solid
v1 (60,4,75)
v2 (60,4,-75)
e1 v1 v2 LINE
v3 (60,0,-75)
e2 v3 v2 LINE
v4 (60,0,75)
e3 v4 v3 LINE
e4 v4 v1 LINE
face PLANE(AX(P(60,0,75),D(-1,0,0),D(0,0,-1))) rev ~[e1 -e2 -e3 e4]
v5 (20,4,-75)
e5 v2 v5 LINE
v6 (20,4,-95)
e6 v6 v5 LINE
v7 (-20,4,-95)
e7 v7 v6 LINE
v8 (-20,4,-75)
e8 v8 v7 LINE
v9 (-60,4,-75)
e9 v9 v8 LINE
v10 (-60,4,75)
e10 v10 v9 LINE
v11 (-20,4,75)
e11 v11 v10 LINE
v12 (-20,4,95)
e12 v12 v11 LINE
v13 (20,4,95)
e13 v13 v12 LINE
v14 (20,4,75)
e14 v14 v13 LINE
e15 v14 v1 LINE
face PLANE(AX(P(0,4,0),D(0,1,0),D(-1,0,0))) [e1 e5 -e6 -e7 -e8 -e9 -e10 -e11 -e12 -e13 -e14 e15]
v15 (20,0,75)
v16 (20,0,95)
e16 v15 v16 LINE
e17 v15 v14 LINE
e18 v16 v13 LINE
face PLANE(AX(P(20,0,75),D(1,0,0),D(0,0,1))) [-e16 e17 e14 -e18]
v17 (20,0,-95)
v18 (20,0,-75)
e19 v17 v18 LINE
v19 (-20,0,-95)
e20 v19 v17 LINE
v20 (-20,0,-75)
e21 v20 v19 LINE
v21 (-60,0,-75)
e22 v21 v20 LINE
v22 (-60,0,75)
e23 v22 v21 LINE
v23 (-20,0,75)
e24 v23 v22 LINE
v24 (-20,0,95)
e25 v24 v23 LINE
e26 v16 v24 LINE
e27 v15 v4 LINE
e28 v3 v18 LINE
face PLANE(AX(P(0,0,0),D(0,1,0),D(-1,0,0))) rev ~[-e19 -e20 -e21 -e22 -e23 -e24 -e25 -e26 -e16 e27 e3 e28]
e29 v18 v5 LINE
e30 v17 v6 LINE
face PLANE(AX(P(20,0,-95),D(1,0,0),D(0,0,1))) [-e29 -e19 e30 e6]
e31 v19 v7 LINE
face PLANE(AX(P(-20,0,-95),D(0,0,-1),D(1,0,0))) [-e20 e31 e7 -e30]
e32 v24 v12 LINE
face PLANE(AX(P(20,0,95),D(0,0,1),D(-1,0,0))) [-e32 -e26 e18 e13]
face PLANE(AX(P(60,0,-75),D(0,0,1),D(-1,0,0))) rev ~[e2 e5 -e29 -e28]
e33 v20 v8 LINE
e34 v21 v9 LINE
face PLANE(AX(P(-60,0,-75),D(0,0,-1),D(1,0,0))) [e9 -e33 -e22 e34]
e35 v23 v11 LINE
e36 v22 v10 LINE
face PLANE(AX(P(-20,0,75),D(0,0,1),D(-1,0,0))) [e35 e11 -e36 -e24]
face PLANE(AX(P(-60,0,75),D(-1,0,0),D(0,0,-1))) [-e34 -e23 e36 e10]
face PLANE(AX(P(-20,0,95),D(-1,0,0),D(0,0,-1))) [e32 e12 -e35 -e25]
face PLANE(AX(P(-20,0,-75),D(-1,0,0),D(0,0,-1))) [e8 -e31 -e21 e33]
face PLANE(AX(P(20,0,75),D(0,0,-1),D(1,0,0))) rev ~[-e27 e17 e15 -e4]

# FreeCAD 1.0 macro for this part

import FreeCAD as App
import Part
import Sketcher

V = App.Vector
Q = App.Units.Quantity


def add_polygon(sketch, points):
    """Adds a closed chain of lines whose ends are joined by coincident constraints."""
    first, n = sketch.GeometryCount, len(points)
    for a, b in zip(points, points[1:] + points[:1]):
        sketch.addGeometry(Part.LineSegment(App.Vector(*a, 0), App.Vector(*b, 0)), False)
    for i in range(n):
        sketch.addConstraint(Sketcher.Constraint("Coincident", first + i, 2, first + (i + 1) % n, 1))

doc = App.newDocument("Part")
body = doc.addObject("PartDesign::Body", "Body")

# Sketch on XZ plane
sketch1 = doc.addObject("Sketcher::SketchObject", "Sketch")
body.addObject(sketch1)
sketch1.AttachmentSupport = (doc.XZ_Plane, [""])
sketch1.MapMode = "FlatFace"
add_polygon(sketch1, [(-20, 95), (20, 95), (20, 75), (60, 75), (60, -75), (20, -75), (20, -95), (-20, -95), (-20, -75), (-60, -75), (-60, 75), (-20, 75)])  # lines 0-11
sketch1.addConstraint(Sketcher.Constraint("Horizontal", 0))
sketch1.addConstraint(Sketcher.Constraint("Vertical", 1))
sketch1.addConstraint(Sketcher.Constraint("Horizontal", 2))
sketch1.addConstraint(Sketcher.Constraint("Vertical", 3))
sketch1.addConstraint(Sketcher.Constraint("Horizontal", 4))
sketch1.addConstraint(Sketcher.Constraint("Vertical", 5))
sketch1.addConstraint(Sketcher.Constraint("Horizontal", 6))
sketch1.addConstraint(Sketcher.Constraint("Vertical", 7))
sketch1.addConstraint(Sketcher.Constraint("Horizontal", 8))
sketch1.addConstraint(Sketcher.Constraint("Vertical", 9))
sketch1.addConstraint(Sketcher.Constraint("Horizontal", 10))
sketch1.addConstraint(Sketcher.Constraint("Vertical", 11))
sketch1.addConstraint(Sketcher.Constraint("Symmetric", 0, 2, 6, 2, -1, 1))
sketch1.addConstraint(Sketcher.Constraint("Symmetric", 2, 2, 8, 2, -1, 1))
sketch1.addConstraint(Sketcher.Constraint("Symmetric", 4, 2, 10, 2, -1, 1))
sketch1.addConstraint(Sketcher.Constraint("Symmetric", 4, 2, 7, 2, -2))
sketch1.addConstraint(Sketcher.Constraint("Equal", 0, 2))
sketch1.addConstraint(Sketcher.Constraint("DistanceX", 0, 1, 0, 2, Q("40 mm")))
sketch1.addConstraint(Sketcher.Constraint("DistanceY", 1, 2, 1, 1, Q("20 mm")))
sketch1.addConstraint(Sketcher.Constraint("DistanceY", -1, 1, 0, 2, Q("95 mm")))
pad1 = doc.addObject("PartDesign::Pad", "Pad")
body.addObject(pad1)
pad1.Profile = sketch1
pad1.Length = 4
pad1.Reversed = True

doc.recompute()
